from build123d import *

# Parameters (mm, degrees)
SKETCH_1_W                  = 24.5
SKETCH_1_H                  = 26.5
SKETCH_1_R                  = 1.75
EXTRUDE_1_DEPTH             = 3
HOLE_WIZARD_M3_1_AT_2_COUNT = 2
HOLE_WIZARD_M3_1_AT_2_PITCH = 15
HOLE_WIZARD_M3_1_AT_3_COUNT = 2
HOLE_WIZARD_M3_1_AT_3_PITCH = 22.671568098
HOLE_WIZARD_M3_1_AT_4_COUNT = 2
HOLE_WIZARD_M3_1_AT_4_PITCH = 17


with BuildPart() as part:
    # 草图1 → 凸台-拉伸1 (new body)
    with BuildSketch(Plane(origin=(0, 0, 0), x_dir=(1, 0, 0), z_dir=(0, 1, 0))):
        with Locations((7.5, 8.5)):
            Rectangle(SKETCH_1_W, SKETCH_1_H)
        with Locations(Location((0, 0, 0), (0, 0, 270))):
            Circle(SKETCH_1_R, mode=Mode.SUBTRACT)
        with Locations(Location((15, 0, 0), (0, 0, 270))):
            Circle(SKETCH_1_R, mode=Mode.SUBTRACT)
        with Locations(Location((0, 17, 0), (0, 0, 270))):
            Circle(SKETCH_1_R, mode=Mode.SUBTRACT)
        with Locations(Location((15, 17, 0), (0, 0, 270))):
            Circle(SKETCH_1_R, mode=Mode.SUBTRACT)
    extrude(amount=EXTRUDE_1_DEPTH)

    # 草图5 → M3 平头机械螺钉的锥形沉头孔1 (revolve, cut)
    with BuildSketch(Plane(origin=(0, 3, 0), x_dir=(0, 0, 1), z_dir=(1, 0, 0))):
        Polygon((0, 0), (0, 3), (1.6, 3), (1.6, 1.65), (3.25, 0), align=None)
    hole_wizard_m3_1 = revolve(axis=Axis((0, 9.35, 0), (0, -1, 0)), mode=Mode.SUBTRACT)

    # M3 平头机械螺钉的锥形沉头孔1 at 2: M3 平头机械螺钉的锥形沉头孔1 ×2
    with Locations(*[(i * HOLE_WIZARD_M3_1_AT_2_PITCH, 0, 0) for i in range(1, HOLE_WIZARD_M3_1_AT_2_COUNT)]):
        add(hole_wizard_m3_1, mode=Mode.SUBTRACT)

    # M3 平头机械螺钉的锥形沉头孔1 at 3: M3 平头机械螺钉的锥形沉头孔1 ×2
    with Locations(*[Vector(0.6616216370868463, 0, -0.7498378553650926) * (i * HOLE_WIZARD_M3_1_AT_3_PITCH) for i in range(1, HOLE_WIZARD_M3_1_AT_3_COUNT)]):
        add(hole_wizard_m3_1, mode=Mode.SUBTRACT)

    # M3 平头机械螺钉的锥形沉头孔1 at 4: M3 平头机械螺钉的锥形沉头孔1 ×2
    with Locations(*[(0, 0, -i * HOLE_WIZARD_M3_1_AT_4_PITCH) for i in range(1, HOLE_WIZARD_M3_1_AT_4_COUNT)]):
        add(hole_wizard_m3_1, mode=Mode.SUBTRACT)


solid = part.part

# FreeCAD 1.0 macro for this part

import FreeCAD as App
import Part
import Sketcher

V = App.Vector
Q = App.Units.Quantity


def add_polygon(sketch, points):
    """Adds a closed chain of lines whose ends are joined by coincident constraints."""
    first, n = sketch.GeometryCount, len(points)
    for a, b in zip(points, points[1:] + points[:1]):
        sketch.addGeometry(Part.LineSegment(App.Vector(*a, 0), App.Vector(*b, 0)), False)
    for i in range(n):
        sketch.addConstraint(Sketcher.Constraint("Coincident", first + i, 2, first + (i + 1) % n, 1))

doc = App.newDocument("Part")
body = doc.addObject("PartDesign::Body", "Body")

# Sketch on XZ plane
sketch1 = doc.addObject("Sketcher::SketchObject", "Sketch")
body.addObject(sketch1)
sketch1.AttachmentSupport = (doc.XZ_Plane, [""])
sketch1.MapMode = "FlatFace"
add_polygon(sketch1, [(-4.8, -21.8), (-4.8, 4.8), (19.8, 4.8), (19.8, -21.8)])  # lines 0-3
sketch1.addGeometry(Part.Circle(V(0, 0, 0), V(0, 0, 1), 1.8), False)  # 4
sketch1.addGeometry(Part.Circle(V(15, 0, 0), V(0, 0, 1), 1.8), False)  # 5
sketch1.addGeometry(Part.Circle(V(0, -17, 0), V(0, 0, 1), 1.8), False)  # 6
sketch1.addGeometry(Part.Circle(V(15, -17, 0), V(0, 0, 1), 1.8), False)  # 7
sketch1.addConstraint([
    Sketcher.Constraint("Vertical", 0),
    Sketcher.Constraint("Horizontal", 1),
    Sketcher.Constraint("Vertical", 2),
    Sketcher.Constraint("Horizontal", 3),
    Sketcher.Constraint("Coincident", 4, 3, -1, 1),
    Sketcher.Constraint("Equal", 4, 5),
    Sketcher.Constraint("Equal", 5, 6),
    Sketcher.Constraint("Equal", 6, 7),
    Sketcher.Constraint("PointOnObject", 5, 3, -1),
    Sketcher.Constraint("PointOnObject", 6, 3, -2),
    Sketcher.Constraint("Horizontal", 6, 3, 7, 3),
    Sketcher.Constraint("Vertical", 5, 3, 7, 3),
    Sketcher.Constraint("Diameter", 4, Q("3.5 mm")),
    Sketcher.Constraint("DistanceX", 1, 1, 1, 2, Q("24.5 mm")),
    Sketcher.Constraint("DistanceY", 0, 1, 0, 2, Q("26.5 mm")),
    Sketcher.Constraint("DistanceX", -1, 1, 5, 3, Q("15 mm")),
    Sketcher.Constraint("DistanceY", 6, 3, -1, 1, Q("17 mm")),
    Sketcher.Constraint("DistanceX", 0, 2, -1, 1, Q("4.75 mm")),
    Sketcher.Constraint("DistanceY", -1, 1, 0, 2, Q("4.75 mm")),
])
pad1 = doc.addObject("PartDesign::Pad", "Pad")
body.addObject(pad1)
pad1.Profile = sketch1
pad1.Length = 3
pad1.Reversed = True

# Sketch on YZ plane
sketch2 = doc.addObject("Sketcher::SketchObject", "Sketch001")
body.addObject(sketch2)
sketch2.AttachmentSupport = (doc.YZ_Plane, [""])
sketch2.MapMode = "FlatFace"
add_polygon(sketch2, [(0, 0), (3, 0), (3, 3.2), (1.4, 1.6), (0, 1.6)])  # lines 0-4
sketch2.addConstraint([
    Sketcher.Constraint("Horizontal", 0),
    Sketcher.Constraint("Vertical", 1),
    Sketcher.Constraint("Horizontal", 3),
    Sketcher.Constraint("Vertical", 4),
    Sketcher.Constraint("Coincident", 4, 2, -1, 1),
    Sketcher.Constraint("DistanceX", 0, 1, 0, 2, Q("3 mm")),
    Sketcher.Constraint("Angle", 2, Q("-135 deg")),
    Sketcher.Constraint("DistanceY", 4, 2, 4, 1, Q("1.6 mm")),
    Sketcher.Constraint("DistanceX", 3, 2, 3, 1, Q("1.35 mm")),
])
groove = doc.addObject("PartDesign::Groove", "Groove")
body.addObject(groove)
groove.Profile = sketch2
groove.ReferenceAxis = (sketch2, ["H_Axis"])
groove.Angle = 360
doc.recompute()

linearpattern = doc.addObject("PartDesign::LinearPattern", "LinearPattern")
body.addObject(linearpattern)
linearpattern.Originals = [groove]
linearpattern.Direction = (doc.X_Axis, [""])
linearpattern.Mode = "offset"
linearpattern.Offset = 15
linearpattern.Occurrences = 2
body.Tip = linearpattern
doc.recompute()

datumline = doc.addObject("PartDesign::Line", "DatumLine")
body.addObject(datumline)
datumline.Placement = App.Placement(V(0, 0, 0), App.Rotation(V(0, 0, 1), V(0.661621637, 0, -0.749837855)))
linearpattern2 = doc.addObject("PartDesign::LinearPattern", "LinearPattern001")
body.addObject(linearpattern2)
linearpattern2.Originals = [groove]
linearpattern2.Direction = (datumline, [""])
linearpattern2.Mode = "offset"
linearpattern2.Offset = 22.671568
linearpattern2.Occurrences = 2
body.Tip = linearpattern2
doc.recompute()

linearpattern3 = doc.addObject("PartDesign::LinearPattern", "LinearPattern002")
body.addObject(linearpattern3)
linearpattern3.Originals = [groove]
linearpattern3.Direction = (doc.Z_Axis, [""])
linearpattern3.Mode = "offset"
linearpattern3.Offset = 17
linearpattern3.Occurrences = 2
linearpattern3.Reversed = True
body.Tip = linearpattern3

doc.recompute()
